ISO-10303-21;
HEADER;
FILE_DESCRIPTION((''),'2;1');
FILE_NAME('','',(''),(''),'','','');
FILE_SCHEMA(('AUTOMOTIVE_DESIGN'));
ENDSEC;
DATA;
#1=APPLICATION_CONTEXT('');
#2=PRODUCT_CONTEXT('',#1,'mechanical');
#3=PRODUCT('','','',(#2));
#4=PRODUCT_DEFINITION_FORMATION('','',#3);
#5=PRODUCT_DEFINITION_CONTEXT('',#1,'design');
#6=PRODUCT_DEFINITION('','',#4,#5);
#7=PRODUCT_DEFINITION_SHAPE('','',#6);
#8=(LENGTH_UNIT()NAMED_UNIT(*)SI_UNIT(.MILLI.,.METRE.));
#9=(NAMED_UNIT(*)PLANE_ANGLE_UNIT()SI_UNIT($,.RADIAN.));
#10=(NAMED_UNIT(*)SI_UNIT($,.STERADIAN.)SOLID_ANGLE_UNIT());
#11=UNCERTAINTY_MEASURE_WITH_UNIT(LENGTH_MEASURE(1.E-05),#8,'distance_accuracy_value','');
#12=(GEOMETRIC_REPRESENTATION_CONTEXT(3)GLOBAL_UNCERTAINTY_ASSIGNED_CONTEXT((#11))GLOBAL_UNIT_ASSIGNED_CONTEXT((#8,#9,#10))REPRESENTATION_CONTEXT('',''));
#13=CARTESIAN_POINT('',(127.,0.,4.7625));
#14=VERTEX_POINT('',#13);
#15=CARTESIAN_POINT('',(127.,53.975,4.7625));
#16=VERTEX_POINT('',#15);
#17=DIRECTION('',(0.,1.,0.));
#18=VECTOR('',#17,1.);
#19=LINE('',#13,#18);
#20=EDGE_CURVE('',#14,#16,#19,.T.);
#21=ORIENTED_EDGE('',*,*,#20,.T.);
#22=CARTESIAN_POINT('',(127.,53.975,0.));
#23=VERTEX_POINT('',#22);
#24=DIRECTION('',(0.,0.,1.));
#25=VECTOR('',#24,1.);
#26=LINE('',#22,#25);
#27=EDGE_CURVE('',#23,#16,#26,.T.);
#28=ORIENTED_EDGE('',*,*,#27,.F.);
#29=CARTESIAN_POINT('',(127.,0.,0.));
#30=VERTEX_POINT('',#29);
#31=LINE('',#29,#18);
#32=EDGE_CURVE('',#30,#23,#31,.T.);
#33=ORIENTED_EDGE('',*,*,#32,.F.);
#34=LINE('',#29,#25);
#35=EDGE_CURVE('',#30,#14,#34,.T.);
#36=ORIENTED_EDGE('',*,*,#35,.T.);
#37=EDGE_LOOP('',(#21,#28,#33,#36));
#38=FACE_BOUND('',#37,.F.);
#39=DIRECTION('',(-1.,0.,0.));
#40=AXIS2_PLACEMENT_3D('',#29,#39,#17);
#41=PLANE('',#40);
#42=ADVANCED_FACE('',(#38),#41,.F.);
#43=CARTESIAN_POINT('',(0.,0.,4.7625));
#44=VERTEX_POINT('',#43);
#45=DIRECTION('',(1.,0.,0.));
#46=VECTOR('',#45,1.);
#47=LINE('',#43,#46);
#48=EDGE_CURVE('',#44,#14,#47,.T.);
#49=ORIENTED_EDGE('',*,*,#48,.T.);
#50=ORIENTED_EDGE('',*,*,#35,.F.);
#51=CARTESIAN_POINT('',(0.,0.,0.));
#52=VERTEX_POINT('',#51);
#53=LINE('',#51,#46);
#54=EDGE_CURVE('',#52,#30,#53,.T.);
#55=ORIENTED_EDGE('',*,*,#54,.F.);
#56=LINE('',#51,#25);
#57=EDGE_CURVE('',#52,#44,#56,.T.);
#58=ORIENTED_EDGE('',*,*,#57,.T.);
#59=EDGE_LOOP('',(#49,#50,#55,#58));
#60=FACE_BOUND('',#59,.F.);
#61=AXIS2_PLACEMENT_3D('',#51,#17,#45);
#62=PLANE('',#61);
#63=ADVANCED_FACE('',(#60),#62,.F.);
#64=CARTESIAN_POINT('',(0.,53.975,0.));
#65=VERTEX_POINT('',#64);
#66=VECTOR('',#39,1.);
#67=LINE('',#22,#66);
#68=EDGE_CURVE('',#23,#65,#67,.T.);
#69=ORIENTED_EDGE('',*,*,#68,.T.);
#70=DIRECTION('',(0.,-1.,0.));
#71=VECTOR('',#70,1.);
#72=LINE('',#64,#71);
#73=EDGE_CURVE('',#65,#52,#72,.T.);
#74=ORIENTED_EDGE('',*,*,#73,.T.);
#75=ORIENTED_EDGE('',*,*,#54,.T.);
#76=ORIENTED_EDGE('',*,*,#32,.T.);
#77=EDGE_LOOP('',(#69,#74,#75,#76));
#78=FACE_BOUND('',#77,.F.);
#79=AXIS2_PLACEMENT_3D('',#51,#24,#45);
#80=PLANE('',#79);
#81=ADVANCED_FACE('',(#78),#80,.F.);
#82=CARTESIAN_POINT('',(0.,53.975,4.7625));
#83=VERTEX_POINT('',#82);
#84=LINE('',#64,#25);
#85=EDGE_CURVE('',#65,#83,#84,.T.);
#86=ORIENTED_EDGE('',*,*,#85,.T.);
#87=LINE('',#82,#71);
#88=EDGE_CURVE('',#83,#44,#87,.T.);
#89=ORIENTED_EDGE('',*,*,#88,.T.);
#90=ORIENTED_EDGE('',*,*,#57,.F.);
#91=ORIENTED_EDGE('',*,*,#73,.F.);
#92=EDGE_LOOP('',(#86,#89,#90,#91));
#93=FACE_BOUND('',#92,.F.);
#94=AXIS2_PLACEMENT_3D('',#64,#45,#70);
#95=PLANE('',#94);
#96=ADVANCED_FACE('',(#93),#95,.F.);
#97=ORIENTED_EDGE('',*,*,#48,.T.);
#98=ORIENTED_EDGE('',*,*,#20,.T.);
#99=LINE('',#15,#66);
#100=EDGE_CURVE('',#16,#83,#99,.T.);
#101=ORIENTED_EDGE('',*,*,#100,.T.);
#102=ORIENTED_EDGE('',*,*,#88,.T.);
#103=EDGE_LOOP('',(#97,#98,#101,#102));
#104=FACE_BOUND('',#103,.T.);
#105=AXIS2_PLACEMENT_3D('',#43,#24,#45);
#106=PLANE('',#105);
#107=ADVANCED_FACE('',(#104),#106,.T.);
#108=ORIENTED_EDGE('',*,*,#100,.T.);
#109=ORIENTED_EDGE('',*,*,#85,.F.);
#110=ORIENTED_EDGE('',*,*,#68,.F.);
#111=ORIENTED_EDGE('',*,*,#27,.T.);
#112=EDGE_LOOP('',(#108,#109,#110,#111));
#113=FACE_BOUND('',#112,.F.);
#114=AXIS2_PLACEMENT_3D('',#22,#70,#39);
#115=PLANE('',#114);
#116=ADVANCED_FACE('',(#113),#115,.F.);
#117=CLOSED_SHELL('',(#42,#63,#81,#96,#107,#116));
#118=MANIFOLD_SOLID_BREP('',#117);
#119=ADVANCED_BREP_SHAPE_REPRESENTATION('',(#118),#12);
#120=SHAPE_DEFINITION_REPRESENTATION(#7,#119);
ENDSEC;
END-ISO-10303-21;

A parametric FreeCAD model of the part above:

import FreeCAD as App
import Part
import Sketcher
from FreeCAD import Vector
Q = App.Units.Quantity

doc = App.newDocument("Part")
body = doc.addObject("PartDesign::Body", "Body")

sketch1 = body.newObject("Sketcher::SketchObject", "Sketch")
sketch1.AttachmentSupport = (doc.getObject("XY_Plane"), [""])
sketch1.MapMode = "FlatFace"
sketch1.addGeometry(Part.LineSegment(Vector(0, 53.975, 0), Vector(0, 0, 0)), False)
sketch1.addGeometry(Part.LineSegment(Vector(0, 0, 0), Vector(127, 0, 0)), False)
sketch1.addGeometry(Part.LineSegment(Vector(127, 0, 0), Vector(127, 53.975, 0)), False)
sketch1.addGeometry(Part.LineSegment(Vector(127, 53.975, 0), Vector(0, 53.975, 0)), False)
sketch1.addConstraint(Sketcher.Constraint("Coincident", 0, 2, 1, 1))
sketch1.addConstraint(Sketcher.Constraint("Coincident", 1, 2, 2, 1))
sketch1.addConstraint(Sketcher.Constraint("Coincident", 2, 2, 3, 1))
sketch1.addConstraint(Sketcher.Constraint("Coincident", 3, 2, 0, 1))
sketch1.addConstraint(Sketcher.Constraint("Vertical", 0))
sketch1.addConstraint(Sketcher.Constraint("Horizontal", 1))
sketch1.addConstraint(Sketcher.Constraint("Vertical", 2))
sketch1.addConstraint(Sketcher.Constraint("Horizontal", 3))
sketch1.addConstraint(Sketcher.Constraint("Coincident", 0, 2, -1, 1))
sketch1.addConstraint(Sketcher.Constraint("DistanceX", 1, 1, 1, 2, Q("5 in")))
sketch1.addConstraint(Sketcher.Constraint("DistanceY", 0, 2, 0, 1, Q("2.125 in")))
pad1 = body.newObject("PartDesign::Pad", "Pad")
pad1.Profile = sketch1
pad1.Length = Q("0.1875 in")

doc.recompute()
